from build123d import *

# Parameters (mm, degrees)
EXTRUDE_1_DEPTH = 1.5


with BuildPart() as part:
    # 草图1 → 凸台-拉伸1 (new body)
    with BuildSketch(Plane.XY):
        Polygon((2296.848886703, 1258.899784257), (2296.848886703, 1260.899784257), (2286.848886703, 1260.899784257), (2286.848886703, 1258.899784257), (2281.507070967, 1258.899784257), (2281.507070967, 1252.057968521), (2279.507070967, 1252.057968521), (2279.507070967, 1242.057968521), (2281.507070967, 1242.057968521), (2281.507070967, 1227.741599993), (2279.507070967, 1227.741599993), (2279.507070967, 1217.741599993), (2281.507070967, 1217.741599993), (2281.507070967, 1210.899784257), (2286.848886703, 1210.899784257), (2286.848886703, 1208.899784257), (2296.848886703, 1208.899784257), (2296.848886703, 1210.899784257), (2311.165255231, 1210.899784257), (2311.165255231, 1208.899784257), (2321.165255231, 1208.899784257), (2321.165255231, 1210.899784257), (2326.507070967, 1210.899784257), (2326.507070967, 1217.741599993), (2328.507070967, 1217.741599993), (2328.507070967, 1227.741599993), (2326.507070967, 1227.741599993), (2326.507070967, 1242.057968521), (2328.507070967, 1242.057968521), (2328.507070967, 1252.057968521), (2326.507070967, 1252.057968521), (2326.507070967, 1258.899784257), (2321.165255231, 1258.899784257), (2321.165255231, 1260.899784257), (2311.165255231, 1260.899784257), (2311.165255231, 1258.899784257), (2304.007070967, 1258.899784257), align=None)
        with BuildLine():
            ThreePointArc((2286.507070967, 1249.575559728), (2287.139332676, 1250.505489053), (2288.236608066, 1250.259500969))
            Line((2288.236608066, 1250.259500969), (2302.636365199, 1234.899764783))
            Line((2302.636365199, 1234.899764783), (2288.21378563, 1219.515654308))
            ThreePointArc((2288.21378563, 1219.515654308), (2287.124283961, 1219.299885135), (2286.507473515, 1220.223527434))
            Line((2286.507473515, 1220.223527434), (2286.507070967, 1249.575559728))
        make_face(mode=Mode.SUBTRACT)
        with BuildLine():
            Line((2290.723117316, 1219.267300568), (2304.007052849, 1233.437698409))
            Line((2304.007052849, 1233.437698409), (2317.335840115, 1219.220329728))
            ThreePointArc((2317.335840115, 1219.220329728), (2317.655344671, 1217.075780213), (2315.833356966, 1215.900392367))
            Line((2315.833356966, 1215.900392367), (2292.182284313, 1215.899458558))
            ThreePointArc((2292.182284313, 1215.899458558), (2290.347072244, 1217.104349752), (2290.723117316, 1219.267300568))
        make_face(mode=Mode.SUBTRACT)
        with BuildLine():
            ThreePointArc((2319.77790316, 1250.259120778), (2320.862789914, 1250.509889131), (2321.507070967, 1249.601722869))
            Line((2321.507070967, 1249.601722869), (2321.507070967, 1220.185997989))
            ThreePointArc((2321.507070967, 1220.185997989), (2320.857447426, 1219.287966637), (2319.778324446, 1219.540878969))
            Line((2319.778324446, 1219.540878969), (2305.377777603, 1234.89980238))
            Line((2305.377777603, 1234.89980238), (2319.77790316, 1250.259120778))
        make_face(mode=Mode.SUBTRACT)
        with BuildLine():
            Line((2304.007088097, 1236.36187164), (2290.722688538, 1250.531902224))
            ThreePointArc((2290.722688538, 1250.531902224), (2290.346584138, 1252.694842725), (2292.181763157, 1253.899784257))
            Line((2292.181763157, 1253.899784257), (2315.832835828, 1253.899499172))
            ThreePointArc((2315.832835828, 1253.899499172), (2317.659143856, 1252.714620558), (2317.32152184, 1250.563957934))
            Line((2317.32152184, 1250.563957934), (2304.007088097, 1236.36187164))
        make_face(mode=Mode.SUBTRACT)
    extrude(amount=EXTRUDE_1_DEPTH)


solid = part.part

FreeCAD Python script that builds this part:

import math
import FreeCAD as App
import Part
import Sketcher
from FreeCAD import Vector
Q = App.Units.Quantity


def add_polygon(sketch, points):
    """Adds a closed chain of lines whose ends are joined by coincident constraints."""
    first, n = sketch.GeometryCount, len(points)
    for a, b in zip(points, points[1:] + points[:1]):
        sketch.addGeometry(Part.LineSegment(App.Vector(*a, 0), App.Vector(*b, 0)), False)
    for i in range(n):
        sketch.addConstraint(Sketcher.Constraint("Coincident", first + i, 2, first + (i + 1) % n, 1))

doc = App.newDocument("Part")
body = doc.addObject("PartDesign::Body", "Body")

# Sketch on XY plane
sketch1 = body.newObject("Sketcher::SketchObject", "Sketch")
sketch1.AttachmentSupport = (doc.getObject("XY_Plane"), [""])
sketch1.MapMode = "FlatFace"
add_polygon(sketch1, [(2296.8, 1258.9), (2296.8, 1260.9), (2286.8, 1260.9), (2286.8, 1258.9), (2281.5, 1258.9), (2281.5, 1252.1), (2279.5, 1252.1), (2279.5, 1242.1), (2281.5, 1242.1), (2281.5, 1227.7), (2279.5, 1227.7), (2279.5, 1217.7), (2281.5, 1217.7), (2281.5, 1210.9), (2286.8, 1210.9), (2286.8, 1208.9), (2296.8, 1208.9), (2296.8, 1210.9), (2311.2, 1210.9), (2311.2, 1208.9), (2321.2, 1208.9), (2321.2, 1210.9), (2326.5, 1210.9), (2326.5, 1217.7), (2328.5, 1217.7), (2328.5, 1227.7), (2326.5, 1227.7), (2326.5, 1242.1), (2328.5, 1242.1), (2328.5, 1252.1), (2326.5, 1252.1), (2326.5, 1258.9), (2321.2, 1258.9), (2321.2, 1260.9), (2311.2, 1260.9), (2311.2, 1258.9)])  # lines 0-35
sketch1.addGeometry(Part.LineSegment(Vector(2286.5, 1220.2, 0), Vector(2286.5, 1249.6, 0)), False)  # 36
sketch1.addGeometry(Part.ArcOfCircle(Part.Circle(Vector(2287.5, 1249.6, 0), Vector(0, 0, 1), 1), math.radians(43), math.radians(180)), False)  # 37
sketch1.addGeometry(Part.LineSegment(Vector(2288.2, 1250.3, 0), Vector(2302.6, 1234.9, 0)), False)  # 38
sketch1.addGeometry(Part.LineSegment(Vector(2302.6, 1234.9, 0), Vector(2288.2, 1219.5, 0)), False)  # 39
sketch1.addGeometry(Part.ArcOfCircle(Part.Circle(Vector(2287.5, 1220.2, 0), Vector(0, 0, 1), 1), math.radians(-180), math.radians(-45)), False)  # 40
sketch1.addGeometry(Part.ArcOfCircle(Part.Circle(Vector(2292.2, 1217.9, 0), Vector(0, 0, 1), 2), math.radians(137), math.radians(270)), False)  # 41
sketch1.addGeometry(Part.LineSegment(Vector(2290.7, 1219.3, 0), Vector(2304, 1233.4, 0)), False)  # 42
sketch1.addGeometry(Part.LineSegment(Vector(2304, 1233.4, 0), Vector(2317.3, 1219.2, 0)), False)  # 43
sketch1.addGeometry(Part.ArcOfCircle(Part.Circle(Vector(2315.8, 1217.9, 0), Vector(0, 0, 1), 2), math.radians(-90), math.radians(41)), False)  # 44
sketch1.addGeometry(Part.LineSegment(Vector(2315.8, 1215.9, 0), Vector(2292.2, 1215.9, 0)), False)  # 45
sketch1.addGeometry(Part.LineSegment(Vector(2305.4, 1234.9, 0), Vector(2319.8, 1250.3, 0)), False)  # 46
sketch1.addGeometry(Part.ArcOfCircle(Part.Circle(Vector(2320.5, 1249.6, 0), Vector(0, 0, 1), 1), math.radians(2), math.radians(137)), False)  # 47
sketch1.addGeometry(Part.LineSegment(Vector(2321.5, 1249.6, 0), Vector(2321.5, 1220.2, 0)), False)  # 48
sketch1.addGeometry(Part.ArcOfCircle(Part.Circle(Vector(2320.5, 1220.2, 0), Vector(0, 0, 1), 1), math.radians(-137), math.radians(-2)), False)  # 49
sketch1.addGeometry(Part.LineSegment(Vector(2319.8, 1219.5, 0), Vector(2305.4, 1234.9, 0)), False)  # 50
sketch1.addGeometry(Part.LineSegment(Vector(2317.3, 1250.6, 0), Vector(2304, 1236.4, 0)), False)  # 51
sketch1.addGeometry(Part.LineSegment(Vector(2304, 1236.4, 0), Vector(2290.7, 1250.5, 0)), False)  # 52
sketch1.addGeometry(Part.ArcOfCircle(Part.Circle(Vector(2292.2, 1251.9, 0), Vector(0, 0, 1), 2), math.radians(90), math.radians(223)), False)  # 53
sketch1.addGeometry(Part.LineSegment(Vector(2292.2, 1253.9, 0), Vector(2315.8, 1253.9, 0)), False)  # 54
sketch1.addGeometry(Part.ArcOfCircle(Part.Circle(Vector(2315.8, 1251.9, 0), Vector(0, 0, 1), 2), math.radians(-42), math.radians(90)), False)  # 55
sketch1.addConstraint(Sketcher.Constraint("Coincident", 36, 2, 37, 2))
sketch1.addConstraint(Sketcher.Constraint("Tangent", 37, 1, 38, 1))
sketch1.addConstraint(Sketcher.Constraint("Coincident", 38, 2, 39, 1))
sketch1.addConstraint(Sketcher.Constraint("Coincident", 39, 2, 40, 2))
sketch1.addConstraint(Sketcher.Constraint("Coincident", 40, 1, 36, 1))
sketch1.addConstraint(Sketcher.Constraint("Coincident", 41, 1, 42, 1))
sketch1.addConstraint(Sketcher.Constraint("Coincident", 42, 2, 43, 1))
sketch1.addConstraint(Sketcher.Constraint("Coincident", 43, 2, 44, 2))
sketch1.addConstraint(Sketcher.Constraint("Coincident", 44, 1, 45, 1))
sketch1.addConstraint(Sketcher.Constraint("Coincident", 45, 2, 41, 2))
sketch1.addConstraint(Sketcher.Constraint("Coincident", 46, 2, 47, 2))
sketch1.addConstraint(Sketcher.Constraint("Coincident", 47, 1, 48, 1))
sketch1.addConstraint(Sketcher.Constraint("Coincident", 48, 2, 49, 2))
sketch1.addConstraint(Sketcher.Constraint("Coincident", 49, 1, 50, 1))
sketch1.addConstraint(Sketcher.Constraint("Coincident", 50, 2, 46, 1))
sketch1.addConstraint(Sketcher.Constraint("Coincident", 51, 2, 52, 1))
sketch1.addConstraint(Sketcher.Constraint("Tangent", 52, 2, 53, 2))
sketch1.addConstraint(Sketcher.Constraint("Coincident", 53, 1, 54, 1))
sketch1.addConstraint(Sketcher.Constraint("Coincident", 54, 2, 55, 2))
sketch1.addConstraint(Sketcher.Constraint("Coincident", 55, 1, 51, 1))
sketch1.addConstraint(Sketcher.Constraint("Vertical", 0))
sketch1.addConstraint(Sketcher.Constraint("Horizontal", 1))
sketch1.addConstraint(Sketcher.Constraint("Vertical", 2))
sketch1.addConstraint(Sketcher.Constraint("Horizontal", 3))
sketch1.addConstraint(Sketcher.Constraint("Vertical", 4))
sketch1.addConstraint(Sketcher.Constraint("Horizontal", 5))
sketch1.addConstraint(Sketcher.Constraint("Vertical", 6))
sketch1.addConstraint(Sketcher.Constraint("Horizontal", 7))
sketch1.addConstraint(Sketcher.Constraint("Vertical", 8))
sketch1.addConstraint(Sketcher.Constraint("Horizontal", 9))
sketch1.addConstraint(Sketcher.Constraint("Vertical", 10))
sketch1.addConstraint(Sketcher.Constraint("Horizontal", 11))
sketch1.addConstraint(Sketcher.Constraint("Vertical", 12))
sketch1.addConstraint(Sketcher.Constraint("Horizontal", 13))
sketch1.addConstraint(Sketcher.Constraint("Vertical", 14))
sketch1.addConstraint(Sketcher.Constraint("Horizontal", 15))
sketch1.addConstraint(Sketcher.Constraint("Vertical", 16))
sketch1.addConstraint(Sketcher.Constraint("Horizontal", 17))
sketch1.addConstraint(Sketcher.Constraint("Vertical", 18))
sketch1.addConstraint(Sketcher.Constraint("Horizontal", 19))
sketch1.addConstraint(Sketcher.Constraint("Vertical", 20))
sketch1.addConstraint(Sketcher.Constraint("Horizontal", 21))
sketch1.addConstraint(Sketcher.Constraint("Vertical", 22))
sketch1.addConstraint(Sketcher.Constraint("Horizontal", 23))
sketch1.addConstraint(Sketcher.Constraint("Vertical", 24))
sketch1.addConstraint(Sketcher.Constraint("Horizontal", 25))
sketch1.addConstraint(Sketcher.Constraint("Vertical", 26))
sketch1.addConstraint(Sketcher.Constraint("Horizontal", 27))
sketch1.addConstraint(Sketcher.Constraint("Vertical", 28))
sketch1.addConstraint(Sketcher.Constraint("Horizontal", 29))
sketch1.addConstraint(Sketcher.Constraint("Vertical", 30))
sketch1.addConstraint(Sketcher.Constraint("Horizontal", 31))
sketch1.addConstraint(Sketcher.Constraint("Vertical", 32))
sketch1.addConstraint(Sketcher.Constraint("Horizontal", 33))
sketch1.addConstraint(Sketcher.Constraint("Vertical", 34))
sketch1.addConstraint(Sketcher.Constraint("Horizontal", 35))
sketch1.addConstraint(Sketcher.Constraint("Vertical", 48))
sketch1.addConstraint(Sketcher.Constraint("Equal", 37, 40))
sketch1.addConstraint(Sketcher.Constraint("Equal", 41, 44))
sketch1.addConstraint(Sketcher.Constraint("Equal", 40, 47))
sketch1.addConstraint(Sketcher.Constraint("Equal", 47, 49))
sketch1.addConstraint(Sketcher.Constraint("Equal", 44, 53))
sketch1.addConstraint(Sketcher.Constraint("Equal", 53, 55))
sketch1.addConstraint(Sketcher.Constraint("Parallel", 38, 43))
sketch1.addConstraint(Sketcher.Constraint("Parallel", 39, 51))
sketch1.addConstraint(Sketcher.Constraint("Parallel", 43, 52))
sketch1.addConstraint(Sketcher.Constraint("Horizontal", 13, 2, 16, 2))
sketch1.addConstraint(Sketcher.Constraint("Horizontal", 15, 2, 18, 2))
sketch1.addConstraint(Sketcher.Constraint("Horizontal", 17, 2, 20, 2))
sketch1.addConstraint(Sketcher.Constraint("Horizontal", 11, 2, 22, 2))
sketch1.addConstraint(Sketcher.Constraint("Horizontal", 9, 2, 24, 2))
sketch1.addConstraint(Sketcher.Constraint("Horizontal", 7, 2, 26, 2))
sketch1.addConstraint(Sketcher.Constraint("Horizontal", 5, 2, 28, 2))
sketch1.addConstraint(Sketcher.Constraint("Horizontal", 3, 2, 30, 2))
sketch1.addConstraint(Sketcher.Constraint("Horizontal", 1, 2, 32, 2))
sketch1.addConstraint(Sketcher.Constraint("Horizontal", 31, 2, 34, 2))
sketch1.addConstraint(Sketcher.Constraint("Horizontal", 37, 3, 36, 2))
sketch1.addConstraint(Sketcher.Constraint("Vertical", 4, 2, 7, 2))
sketch1.addConstraint(Sketcher.Constraint("Vertical", 6, 2, 9, 2))
sketch1.addConstraint(Sketcher.Constraint("Vertical", 8, 2, 11, 2))
sketch1.addConstraint(Sketcher.Constraint("Vertical", 2, 2, 13, 2))
sketch1.addConstraint(Sketcher.Constraint("Vertical", 0, 2, 15, 2))
sketch1.addConstraint(Sketcher.Constraint("Vertical", 22, 2, 25, 2))
sketch1.addConstraint(Sketcher.Constraint("Vertical", 24, 2, 27, 2))
sketch1.addConstraint(Sketcher.Constraint("Vertical", 26, 2, 29, 2))
sketch1.addConstraint(Sketcher.Constraint("Vertical", 20, 2, 31, 2))
sketch1.addConstraint(Sketcher.Constraint("Vertical", 18, 2, 33, 2))
sketch1.addConstraint(Sketcher.Constraint("Equal", 15, 19))
sketch1.addConstraint(Sketcher.Constraint("Equal", 13, 21))
sketch1.addConstraint(Sketcher.Constraint("Equal", 11, 23))
sketch1.addConstraint(Sketcher.Constraint("Equal", 29, 0))
sketch1.addConstraint(Sketcher.Constraint("Equal", 33, 6))
sketch1.addConstraint(Sketcher.Constraint("Equal", 35, 8))
sketch1.addConstraint(Sketcher.Constraint("Equal", 6, 10))
sketch1.addConstraint(Sketcher.Constraint("Equal", 4, 12))
sketch1.addConstraint(Sketcher.Constraint("Equal", 2, 14))
sketch1.addConstraint(Sketcher.Constraint("Equal", 46, 50))
sketch1.addConstraint(Sketcher.Constraint("Equal", 45, 54))
sketch1.addConstraint(Sketcher.Constraint("Radius", 37, Q("1 mm")))
sketch1.addConstraint(Sketcher.Constraint("Radius", 41, Q("2 mm")))
sketch1.addConstraint(Sketcher.Constraint("DistanceX", 1, 2, 1, 1, Q("10 mm")))
sketch1.addConstraint(Sketcher.Constraint("DistanceX", 5, 2, 5, 1, Q("2 mm")))
sketch1.addConstraint(Sketcher.Constraint("DistanceX", 17, 1, 17, 2, Q("14.316369 mm")))
sketch1.addConstraint(Sketcher.Constraint("DistanceY", -1, 1, 55, 3, Q("1251.899499 mm")))
sketch1.addConstraint(Sketcher.Constraint("DistanceY", -1, 1, 8, 2, Q("1227.7416 mm")))
sketch1.addConstraint(Sketcher.Constraint("DistanceY", -1, 1, 37, 1, Q("1250.259501 mm")))
sketch1.addConstraint(Sketcher.Constraint("DistanceY", -1, 1, 41, 1, Q("1219.267301 mm")))
sketch1.addConstraint(Sketcher.Constraint("DistanceY", -1, 1, 42, 2, Q("1233.437698 mm")))
sketch1.addConstraint(Sketcher.Constraint("Distance", 51, Q("19.467239 mm")))
sketch1.addConstraint(Sketcher.Constraint("Distance", 52, Q("19.423312 mm")))
sketch1.addConstraint(Sketcher.Constraint("DistanceX", 3, 2, 3, 1, Q("5.341816 mm")))
sketch1.addConstraint(Sketcher.Constraint("DistanceY", 4, 2, 4, 1, Q("6.841816 mm")))
sketch1.addConstraint(Sketcher.Constraint("DistanceY", 48, 2, 48, 1, Q("29.415725 mm")))
sketch1.addConstraint(Sketcher.Constraint("DistanceX", -1, 1, 37, 3, Q("2287.507071 mm")))
sketch1.addConstraint(Sketcher.Constraint("DistanceY", -1, 1, 37, 3, Q("1249.57556 mm")))
sketch1.addConstraint(Sketcher.Constraint("DistanceX", -1, 1, 41, 3, Q("2292.182229 mm")))
sketch1.addConstraint(Sketcher.Constraint("DistanceY", -1, 1, 41, 3, Q("1217.899459 mm")))
sketch1.addConstraint(Sketcher.Constraint("DistanceY", -1, 1, 47, 3, Q("1249.575162 mm")))
sketch1.addConstraint(Sketcher.Constraint("DistanceX", -1, 1, 3, 2, Q("2281.507071 mm")))
sketch1.addConstraint(Sketcher.Constraint("DistanceX", -1, 1, 43, 2, Q("2317.33584 mm")))
sketch1.addConstraint(Sketcher.Constraint("DistanceY", -1, 1, 43, 2, Q("1219.22033 mm")))
sketch1.addConstraint(Sketcher.Constraint("DistanceY", -1, 1, 46, 2, Q("1250.259121 mm")))
sketch1.addConstraint(Sketcher.Constraint("DistanceX", -1, 1, 47, 1, Q("2321.507071 mm")))
sketch1.addConstraint(Sketcher.Constraint("DistanceY", -1, 1, 49, 1, Q("1219.540879 mm")))
sketch1.addConstraint(Sketcher.Constraint("DistanceX", -1, 1, 51, 2, Q("2304.007088 mm")))
sketch1.addConstraint(Sketcher.Constraint("DistanceY", -1, 1, 51, 2, Q("1236.361872 mm")))
sketch1.addConstraint(Sketcher.Constraint("DistanceX", -1, 1, 55, 1, Q("2317.321522 mm")))
sketch1.addConstraint(Sketcher.Constraint("Distance", 36, Q("29.352032 mm")))
sketch1.addConstraint(Sketcher.Constraint("Distance", 38, Q("21.054085 mm")))
sketch1.addConstraint(Sketcher.Constraint("Distance", 39, Q("21.087476 mm")))
sketch1.addConstraint(Sketcher.Constraint("Distance", 45, Q("23.651073 mm")))
sketch1.addConstraint(Sketcher.Constraint("Distance", 46, Q("21.054032 mm")))
sketch1.addConstraint(Sketcher.Constraint("DistanceX", -1, 1, 40, 3, Q("2287.507474 mm")))
sketch1.addConstraint(Sketcher.Constraint("DistanceX", -1, 1, 44, 3, Q("2315.833254 mm")))
sketch1.addConstraint(Sketcher.Constraint("DistanceX", -1, 1, 47, 3, Q("2320.507424 mm")))
sketch1.addConstraint(Sketcher.Constraint("DistanceX", -1, 1, 49, 3, Q("2320.507826 mm")))
sketch1.addConstraint(Sketcher.Constraint("DistanceX", -1, 1, 44, 1, Q("2315.833357 mm")))
sketch1.addConstraint(Sketcher.Constraint("DistanceX", -1, 1, 53, 1, Q("2292.181763 mm")))
pad1 = body.newObject("PartDesign::Pad", "Pad")
pad1.Profile = sketch1
pad1.Length = 1.5

doc.recompute()
